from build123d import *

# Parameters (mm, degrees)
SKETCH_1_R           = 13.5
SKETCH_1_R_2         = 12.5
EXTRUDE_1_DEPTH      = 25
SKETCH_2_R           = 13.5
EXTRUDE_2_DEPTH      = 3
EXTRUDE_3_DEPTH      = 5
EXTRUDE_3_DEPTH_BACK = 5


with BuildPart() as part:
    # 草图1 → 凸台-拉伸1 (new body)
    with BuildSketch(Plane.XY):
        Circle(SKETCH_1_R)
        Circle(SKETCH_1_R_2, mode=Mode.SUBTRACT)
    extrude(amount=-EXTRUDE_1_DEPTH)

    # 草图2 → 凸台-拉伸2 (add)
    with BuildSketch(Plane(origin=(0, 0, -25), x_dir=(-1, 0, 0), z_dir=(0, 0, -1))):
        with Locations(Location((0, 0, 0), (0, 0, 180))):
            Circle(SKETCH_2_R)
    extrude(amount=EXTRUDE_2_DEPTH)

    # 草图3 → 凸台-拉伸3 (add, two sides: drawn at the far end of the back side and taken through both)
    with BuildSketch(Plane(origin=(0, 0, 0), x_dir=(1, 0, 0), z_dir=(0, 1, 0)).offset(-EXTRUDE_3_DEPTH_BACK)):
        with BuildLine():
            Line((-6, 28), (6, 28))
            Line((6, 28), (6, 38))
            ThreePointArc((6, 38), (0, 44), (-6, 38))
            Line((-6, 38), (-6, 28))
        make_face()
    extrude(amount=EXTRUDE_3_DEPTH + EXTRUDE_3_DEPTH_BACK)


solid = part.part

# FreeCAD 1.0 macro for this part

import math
import FreeCAD as App
import Part
import Sketcher

V = App.Vector

doc = App.newDocument("Part")
body = doc.addObject("PartDesign::Body", "Body")

sketch1 = body.newObject("Sketcher::SketchObject", "Sketch")
sketch1.AttachmentSupport = (doc.getObject("XY_Plane"), [""])
sketch1.MapMode = "FlatFace"
sketch1.addGeometry(Part.Circle(V(0, 0, 0), V(0, 0, 1), 14), False)
sketch1.addGeometry(Part.Circle(V(0, 0, 0), V(0, 0, 1), 12), False)
sketch1.addConstraint(Sketcher.Constraint("Coincident", 0, 3, -1, 1))
sketch1.addConstraint(Sketcher.Constraint("Coincident", 1, 3, -1, 1))
sketch1.addConstraint(Sketcher.Constraint("Diameter", 0, 27.0))
sketch1.addConstraint(Sketcher.Constraint("Diameter", 1, 25.0))
pad1 = body.newObject("PartDesign::Pad", "Pad")
pad1.Profile = sketch1
pad1.Length = 25
pad1.Reversed = True

sketch2 = body.newObject("Sketcher::SketchObject", "Sketch001")
sketch2.AttachmentSupport = (doc.getObject("XY_Plane"), [""])
sketch2.MapMode = "FlatFace"
sketch2.AttachmentOffset = App.Placement(V(0, 0, -25), App.Rotation())
sketch2.addGeometry(Part.Circle(V(0, 0, 0), V(0, 0, 1), 14), False)
sketch2.addConstraint(Sketcher.Constraint("Coincident", 0, 3, -1, 1))
sketch2.addConstraint(Sketcher.Constraint("Diameter", 0, 27.0))
pad2 = body.newObject("PartDesign::Pad", "Pad001")
pad2.Profile = sketch2
pad2.Length = 3
pad2.Reversed = True

sketch3 = body.newObject("Sketcher::SketchObject", "Sketch002")
sketch3.AttachmentSupport = (doc.getObject("XZ_Plane"), [""])
sketch3.MapMode = "FlatFace"
sketch3.addGeometry(Part.LineSegment(V(-6, -28, 0), V(6, -28, 0)), False)
sketch3.addGeometry(Part.LineSegment(V(6, -28, 0), V(6, -38, 0)), False)
sketch3.addGeometry(Part.ArcOfCircle(Part.Circle(V(0, -38, 0), V(0, 0, 1), 6), math.radians(180), math.radians(360)), False)
sketch3.addGeometry(Part.LineSegment(V(-6, -38, 0), V(-6, -28, 0)), False)
sketch3.addConstraint(Sketcher.Constraint("Coincident", 0, 2, 1, 1))
sketch3.addConstraint(Sketcher.Constraint("Tangent", 1, 2, 2, 2))
sketch3.addConstraint(Sketcher.Constraint("Tangent", 2, 1, 3, 1))
sketch3.addConstraint(Sketcher.Constraint("Coincident", 3, 2, 0, 1))
sketch3.addConstraint(Sketcher.Constraint("Horizontal", 0))
sketch3.addConstraint(Sketcher.Constraint("Vertical", 1))
sketch3.addConstraint(Sketcher.Constraint("Vertical", 3))
sketch3.addConstraint(Sketcher.Constraint("PointOnObject", 2, 3, -2))
sketch3.addConstraint(Sketcher.Constraint("Radius", 2, 6.0))
sketch3.addConstraint(Sketcher.Constraint("DistanceY", 1, 2, 1, 1, 10.0))
sketch3.addConstraint(Sketcher.Constraint("DistanceY", 2, 3, -1, 1, 38.0))
pad3 = body.newObject("PartDesign::Pad", "Pad002")
pad3.Profile = sketch3
pad3.Type = "TwoLengths"
pad3.Length = 5
pad3.Length2 = 5
pad3.Reversed = True

doc.recompute()
